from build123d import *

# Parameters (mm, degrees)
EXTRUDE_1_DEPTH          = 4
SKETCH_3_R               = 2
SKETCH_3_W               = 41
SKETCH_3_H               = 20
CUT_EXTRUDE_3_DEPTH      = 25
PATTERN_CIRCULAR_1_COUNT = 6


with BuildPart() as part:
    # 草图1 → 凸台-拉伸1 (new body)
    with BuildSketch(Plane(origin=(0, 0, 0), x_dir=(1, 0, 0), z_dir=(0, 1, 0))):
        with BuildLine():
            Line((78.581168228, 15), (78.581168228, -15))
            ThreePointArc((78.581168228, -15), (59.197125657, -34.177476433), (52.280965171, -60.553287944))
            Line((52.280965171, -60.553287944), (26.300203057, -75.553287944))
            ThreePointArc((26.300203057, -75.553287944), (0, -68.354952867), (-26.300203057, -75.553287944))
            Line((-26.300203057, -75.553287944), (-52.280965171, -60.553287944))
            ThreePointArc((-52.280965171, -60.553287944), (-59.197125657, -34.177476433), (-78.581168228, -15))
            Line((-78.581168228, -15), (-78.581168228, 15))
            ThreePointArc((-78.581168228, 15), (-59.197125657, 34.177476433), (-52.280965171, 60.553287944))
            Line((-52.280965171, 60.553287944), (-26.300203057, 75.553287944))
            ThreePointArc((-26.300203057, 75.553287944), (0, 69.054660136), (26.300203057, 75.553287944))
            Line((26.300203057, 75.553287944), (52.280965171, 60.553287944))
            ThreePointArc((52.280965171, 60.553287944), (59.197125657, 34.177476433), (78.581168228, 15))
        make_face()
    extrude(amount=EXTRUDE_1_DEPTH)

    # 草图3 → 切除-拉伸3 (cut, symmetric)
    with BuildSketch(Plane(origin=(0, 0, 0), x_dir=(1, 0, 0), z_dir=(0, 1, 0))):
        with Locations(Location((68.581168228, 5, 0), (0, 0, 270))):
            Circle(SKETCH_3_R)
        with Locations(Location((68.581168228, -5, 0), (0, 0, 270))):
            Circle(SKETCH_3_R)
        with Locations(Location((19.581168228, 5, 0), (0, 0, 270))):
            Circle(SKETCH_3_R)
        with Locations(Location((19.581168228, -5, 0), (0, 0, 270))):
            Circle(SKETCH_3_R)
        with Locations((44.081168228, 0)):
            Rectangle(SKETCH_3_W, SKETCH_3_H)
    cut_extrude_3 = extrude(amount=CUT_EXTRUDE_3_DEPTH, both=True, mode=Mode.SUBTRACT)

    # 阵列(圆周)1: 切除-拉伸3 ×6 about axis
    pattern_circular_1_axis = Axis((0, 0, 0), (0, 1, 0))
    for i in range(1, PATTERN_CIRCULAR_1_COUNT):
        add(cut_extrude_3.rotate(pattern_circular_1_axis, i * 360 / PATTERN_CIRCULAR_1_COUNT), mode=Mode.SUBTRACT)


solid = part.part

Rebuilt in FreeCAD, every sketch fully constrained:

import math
import FreeCAD as App
import Part
import Sketcher

V = App.Vector
Q = App.Units.Quantity


def add_polygon(sketch, points):
    """Adds a closed chain of lines whose ends are joined by coincident constraints."""
    first, n = sketch.GeometryCount, len(points)
    for a, b in zip(points, points[1:] + points[:1]):
        sketch.addGeometry(Part.LineSegment(App.Vector(*a, 0), App.Vector(*b, 0)), False)
    for i in range(n):
        sketch.addConstraint(Sketcher.Constraint("Coincident", first + i, 2, first + (i + 1) % n, 1))

doc = App.newDocument("Part")
body = doc.addObject("PartDesign::Body", "Body")

# Sketch on XZ plane
sketch1 = body.newObject("Sketcher::SketchObject", "Sketch")
sketch1.AttachmentSupport = (doc.getObject("XZ_Plane"), [""])
sketch1.MapMode = "FlatFace"
sketch1.addGeometry(Part.LineSegment(V(79, 15, 0), V(79, -15, 0)), False)
sketch1.addGeometry(Part.ArcOfCircle(Part.Circle(V(104, -60, 0), V(0, 0, 1), 52), math.radians(119), math.radians(181)), False)
sketch1.addGeometry(Part.LineSegment(V(52, -61, 0), V(26, -76, 0)), False)
sketch1.addGeometry(Part.ArcOfCircle(Part.Circle(V(0, -126, 0), V(0, 0, 1), 56), math.radians(62), math.radians(118)), False)
sketch1.addGeometry(Part.LineSegment(V(-26, -76, 0), V(-52, -61, 0)), False)
sketch1.addGeometry(Part.ArcOfCircle(Part.Circle(V(-104, -60, 0), V(0, 0, 1), 52), math.radians(-1), math.radians(61)), False)
sketch1.addGeometry(Part.LineSegment(V(-79, -15, 0), V(-79, 15, 0)), False)
sketch1.addGeometry(Part.ArcOfCircle(Part.Circle(V(-104, 60, 0), V(0, 0, 1), 52), math.radians(-61), math.radians(1)), False)
sketch1.addGeometry(Part.LineSegment(V(-52, 61, 0), V(-26, 76, 0)), False)
sketch1.addGeometry(Part.ArcOfCircle(Part.Circle(V(0, 120, 0), V(0, 0, 1), 52), math.radians(-121), math.radians(-59)), False)
sketch1.addGeometry(Part.LineSegment(V(26, 76, 0), V(52, 61, 0)), False)
sketch1.addGeometry(Part.ArcOfCircle(Part.Circle(V(104, 60, 0), V(0, 0, 1), 52), math.radians(179), math.radians(241)), False)
sketch1.addConstraint(Sketcher.Constraint("Coincident", 0, 2, 1, 1))
sketch1.addConstraint(Sketcher.Constraint("Coincident", 1, 2, 2, 1))
sketch1.addConstraint(Sketcher.Constraint("Coincident", 2, 2, 3, 1))
sketch1.addConstraint(Sketcher.Constraint("Coincident", 3, 2, 4, 1))
sketch1.addConstraint(Sketcher.Constraint("Coincident", 4, 2, 5, 1))
sketch1.addConstraint(Sketcher.Constraint("Coincident", 5, 2, 6, 1))
sketch1.addConstraint(Sketcher.Constraint("Coincident", 6, 2, 7, 1))
sketch1.addConstraint(Sketcher.Constraint("Coincident", 7, 2, 8, 1))
sketch1.addConstraint(Sketcher.Constraint("Coincident", 8, 2, 9, 1))
sketch1.addConstraint(Sketcher.Constraint("Coincident", 9, 2, 10, 1))
sketch1.addConstraint(Sketcher.Constraint("Coincident", 10, 2, 11, 1))
sketch1.addConstraint(Sketcher.Constraint("Coincident", 11, 2, 0, 1))
sketch1.addConstraint(Sketcher.Constraint("Vertical", 0))
sketch1.addConstraint(Sketcher.Constraint("Vertical", 6))
sketch1.addConstraint(Sketcher.Constraint("Equal", 1, 5))
sketch1.addConstraint(Sketcher.Constraint("Equal", 5, 7))
sketch1.addConstraint(Sketcher.Constraint("Equal", 7, 9))
sketch1.addConstraint(Sketcher.Constraint("Equal", 9, 11))
sketch1.addConstraint(Sketcher.Constraint("Symmetric", 1, 3, 7, 3, -1, 1))
sketch1.addConstraint(Sketcher.Constraint("Symmetric", 5, 3, 11, 3, -1, 1))
sketch1.addConstraint(Sketcher.Constraint("Symmetric", 2, 2, 8, 2, -1, 1))
sketch1.addConstraint(Sketcher.Constraint("Symmetric", 3, 2, 9, 2, -1, 1))
sketch1.addConstraint(Sketcher.Constraint("Symmetric", 1, 3, 5, 3, -2))
sketch1.addConstraint(Sketcher.Constraint("Symmetric", 2, 2, 3, 2, -2))
sketch1.addConstraint(Sketcher.Constraint("Parallel", 2, 8))
sketch1.addConstraint(Sketcher.Constraint("Parallel", 4, 10))
sketch1.addConstraint(Sketcher.Constraint("Horizontal", 1, 2, 4, 2))
sketch1.addConstraint(Sketcher.Constraint("Horizontal", 0, 2, 5, 2))
sketch1.addConstraint(Sketcher.Constraint("DistanceY", 0, 2, 0, 1, Q("30 mm")))
sketch1.addConstraint(Sketcher.Constraint("Angle", 2, Q("-150 deg")))
sketch1.addConstraint(Sketcher.Constraint("Distance", 2, Q("30 mm")))
sketch1.addConstraint(Sketcher.Constraint("DistanceY", 1, 3, -1, 1, Q("60 mm")))
sketch1.addConstraint(Sketcher.Constraint("DistanceY", -1, 1, 9, 3, Q("120 mm")))
sketch1.addConstraint(Sketcher.Constraint("Radius", 1, Q("51.645047 mm")))
sketch1.addConstraint(Sketcher.Constraint("Radius", 3, Q("56.468293 mm")))
sketch1.addConstraint(Sketcher.Constraint("DistanceX", -1, 1, 1, 3, Q("103.923048 mm")))
pad1 = body.newObject("PartDesign::Pad", "Pad")
pad1.Profile = sketch1
pad1.Length = 4
pad1.Reversed = True

# Sketch on XZ plane
sketch2 = body.newObject("Sketcher::SketchObject", "Sketch001")
sketch2.AttachmentSupport = (doc.getObject("XZ_Plane"), [""])
sketch2.MapMode = "FlatFace"
sketch2.addGeometry(Part.Circle(V(68.6, -5, 0), V(0, 0, 1), 2), False)  # 0
sketch2.addGeometry(Part.Circle(V(68.6, 5, 0), V(0, 0, 1), 2), False)  # 1
sketch2.addGeometry(Part.Circle(V(19.6, -5, 0), V(0, 0, 1), 2), False)  # 2
sketch2.addGeometry(Part.Circle(V(19.6, 5, 0), V(0, 0, 1), 2), False)  # 3
add_polygon(sketch2, [(23.6, -10), (23.6, 10), (64.6, 10), (64.6, -10)])  # lines 4-7
sketch2.addConstraint(Sketcher.Constraint("Vertical", 4))
sketch2.addConstraint(Sketcher.Constraint("Horizontal", 5))
sketch2.addConstraint(Sketcher.Constraint("Vertical", 6))
sketch2.addConstraint(Sketcher.Constraint("Horizontal", 7))
sketch2.addConstraint(Sketcher.Constraint("Equal", 0, 1))
sketch2.addConstraint(Sketcher.Constraint("Equal", 1, 2))
sketch2.addConstraint(Sketcher.Constraint("Equal", 2, 3))
sketch2.addConstraint(Sketcher.Constraint("Symmetric", 0, 3, 1, 3, -1))
sketch2.addConstraint(Sketcher.Constraint("Symmetric", 2, 3, 3, 3, -1))
sketch2.addConstraint(Sketcher.Constraint("Horizontal", 0, 3, 2, 3))
sketch2.addConstraint(Sketcher.Constraint("Diameter", 0, Q("4 mm")))
sketch2.addConstraint(Sketcher.Constraint("DistanceX", 5, 1, 5, 2, Q("41 mm")))
sketch2.addConstraint(Sketcher.Constraint("DistanceY", 4, 1, 4, 2, Q("20 mm")))
sketch2.addConstraint(Sketcher.Constraint("DistanceY", 0, 3, -1, 1, Q("5 mm")))
sketch2.addConstraint(Sketcher.Constraint("DistanceY", -1, 1, 4, 2, Q("10 mm")))
sketch2.addConstraint(Sketcher.Constraint("DistanceX", 2, 3, 0, 3, Q("49 mm")))
sketch2.addConstraint(Sketcher.Constraint("DistanceX", 3, 3, 4, 2, Q("4 mm")))
sketch2.addConstraint(Sketcher.Constraint("DistanceX", -1, 1, 0, 3, Q("68.581168 mm")))
pocket1 = body.newObject("PartDesign::Pocket", "Pocket")
pocket1.Profile = sketch2
pocket1.Length = 50
pocket1.Midplane = True
doc.recompute()

polarpattern = body.newObject("PartDesign::PolarPattern", "PolarPattern")
polarpattern.Originals = [pocket1]
polarpattern.Axis = (doc.getObject("Y_Axis"), [""])
polarpattern.Angle = 360
polarpattern.Occurrences = 6
body.Tip = polarpattern

doc.recompute()
